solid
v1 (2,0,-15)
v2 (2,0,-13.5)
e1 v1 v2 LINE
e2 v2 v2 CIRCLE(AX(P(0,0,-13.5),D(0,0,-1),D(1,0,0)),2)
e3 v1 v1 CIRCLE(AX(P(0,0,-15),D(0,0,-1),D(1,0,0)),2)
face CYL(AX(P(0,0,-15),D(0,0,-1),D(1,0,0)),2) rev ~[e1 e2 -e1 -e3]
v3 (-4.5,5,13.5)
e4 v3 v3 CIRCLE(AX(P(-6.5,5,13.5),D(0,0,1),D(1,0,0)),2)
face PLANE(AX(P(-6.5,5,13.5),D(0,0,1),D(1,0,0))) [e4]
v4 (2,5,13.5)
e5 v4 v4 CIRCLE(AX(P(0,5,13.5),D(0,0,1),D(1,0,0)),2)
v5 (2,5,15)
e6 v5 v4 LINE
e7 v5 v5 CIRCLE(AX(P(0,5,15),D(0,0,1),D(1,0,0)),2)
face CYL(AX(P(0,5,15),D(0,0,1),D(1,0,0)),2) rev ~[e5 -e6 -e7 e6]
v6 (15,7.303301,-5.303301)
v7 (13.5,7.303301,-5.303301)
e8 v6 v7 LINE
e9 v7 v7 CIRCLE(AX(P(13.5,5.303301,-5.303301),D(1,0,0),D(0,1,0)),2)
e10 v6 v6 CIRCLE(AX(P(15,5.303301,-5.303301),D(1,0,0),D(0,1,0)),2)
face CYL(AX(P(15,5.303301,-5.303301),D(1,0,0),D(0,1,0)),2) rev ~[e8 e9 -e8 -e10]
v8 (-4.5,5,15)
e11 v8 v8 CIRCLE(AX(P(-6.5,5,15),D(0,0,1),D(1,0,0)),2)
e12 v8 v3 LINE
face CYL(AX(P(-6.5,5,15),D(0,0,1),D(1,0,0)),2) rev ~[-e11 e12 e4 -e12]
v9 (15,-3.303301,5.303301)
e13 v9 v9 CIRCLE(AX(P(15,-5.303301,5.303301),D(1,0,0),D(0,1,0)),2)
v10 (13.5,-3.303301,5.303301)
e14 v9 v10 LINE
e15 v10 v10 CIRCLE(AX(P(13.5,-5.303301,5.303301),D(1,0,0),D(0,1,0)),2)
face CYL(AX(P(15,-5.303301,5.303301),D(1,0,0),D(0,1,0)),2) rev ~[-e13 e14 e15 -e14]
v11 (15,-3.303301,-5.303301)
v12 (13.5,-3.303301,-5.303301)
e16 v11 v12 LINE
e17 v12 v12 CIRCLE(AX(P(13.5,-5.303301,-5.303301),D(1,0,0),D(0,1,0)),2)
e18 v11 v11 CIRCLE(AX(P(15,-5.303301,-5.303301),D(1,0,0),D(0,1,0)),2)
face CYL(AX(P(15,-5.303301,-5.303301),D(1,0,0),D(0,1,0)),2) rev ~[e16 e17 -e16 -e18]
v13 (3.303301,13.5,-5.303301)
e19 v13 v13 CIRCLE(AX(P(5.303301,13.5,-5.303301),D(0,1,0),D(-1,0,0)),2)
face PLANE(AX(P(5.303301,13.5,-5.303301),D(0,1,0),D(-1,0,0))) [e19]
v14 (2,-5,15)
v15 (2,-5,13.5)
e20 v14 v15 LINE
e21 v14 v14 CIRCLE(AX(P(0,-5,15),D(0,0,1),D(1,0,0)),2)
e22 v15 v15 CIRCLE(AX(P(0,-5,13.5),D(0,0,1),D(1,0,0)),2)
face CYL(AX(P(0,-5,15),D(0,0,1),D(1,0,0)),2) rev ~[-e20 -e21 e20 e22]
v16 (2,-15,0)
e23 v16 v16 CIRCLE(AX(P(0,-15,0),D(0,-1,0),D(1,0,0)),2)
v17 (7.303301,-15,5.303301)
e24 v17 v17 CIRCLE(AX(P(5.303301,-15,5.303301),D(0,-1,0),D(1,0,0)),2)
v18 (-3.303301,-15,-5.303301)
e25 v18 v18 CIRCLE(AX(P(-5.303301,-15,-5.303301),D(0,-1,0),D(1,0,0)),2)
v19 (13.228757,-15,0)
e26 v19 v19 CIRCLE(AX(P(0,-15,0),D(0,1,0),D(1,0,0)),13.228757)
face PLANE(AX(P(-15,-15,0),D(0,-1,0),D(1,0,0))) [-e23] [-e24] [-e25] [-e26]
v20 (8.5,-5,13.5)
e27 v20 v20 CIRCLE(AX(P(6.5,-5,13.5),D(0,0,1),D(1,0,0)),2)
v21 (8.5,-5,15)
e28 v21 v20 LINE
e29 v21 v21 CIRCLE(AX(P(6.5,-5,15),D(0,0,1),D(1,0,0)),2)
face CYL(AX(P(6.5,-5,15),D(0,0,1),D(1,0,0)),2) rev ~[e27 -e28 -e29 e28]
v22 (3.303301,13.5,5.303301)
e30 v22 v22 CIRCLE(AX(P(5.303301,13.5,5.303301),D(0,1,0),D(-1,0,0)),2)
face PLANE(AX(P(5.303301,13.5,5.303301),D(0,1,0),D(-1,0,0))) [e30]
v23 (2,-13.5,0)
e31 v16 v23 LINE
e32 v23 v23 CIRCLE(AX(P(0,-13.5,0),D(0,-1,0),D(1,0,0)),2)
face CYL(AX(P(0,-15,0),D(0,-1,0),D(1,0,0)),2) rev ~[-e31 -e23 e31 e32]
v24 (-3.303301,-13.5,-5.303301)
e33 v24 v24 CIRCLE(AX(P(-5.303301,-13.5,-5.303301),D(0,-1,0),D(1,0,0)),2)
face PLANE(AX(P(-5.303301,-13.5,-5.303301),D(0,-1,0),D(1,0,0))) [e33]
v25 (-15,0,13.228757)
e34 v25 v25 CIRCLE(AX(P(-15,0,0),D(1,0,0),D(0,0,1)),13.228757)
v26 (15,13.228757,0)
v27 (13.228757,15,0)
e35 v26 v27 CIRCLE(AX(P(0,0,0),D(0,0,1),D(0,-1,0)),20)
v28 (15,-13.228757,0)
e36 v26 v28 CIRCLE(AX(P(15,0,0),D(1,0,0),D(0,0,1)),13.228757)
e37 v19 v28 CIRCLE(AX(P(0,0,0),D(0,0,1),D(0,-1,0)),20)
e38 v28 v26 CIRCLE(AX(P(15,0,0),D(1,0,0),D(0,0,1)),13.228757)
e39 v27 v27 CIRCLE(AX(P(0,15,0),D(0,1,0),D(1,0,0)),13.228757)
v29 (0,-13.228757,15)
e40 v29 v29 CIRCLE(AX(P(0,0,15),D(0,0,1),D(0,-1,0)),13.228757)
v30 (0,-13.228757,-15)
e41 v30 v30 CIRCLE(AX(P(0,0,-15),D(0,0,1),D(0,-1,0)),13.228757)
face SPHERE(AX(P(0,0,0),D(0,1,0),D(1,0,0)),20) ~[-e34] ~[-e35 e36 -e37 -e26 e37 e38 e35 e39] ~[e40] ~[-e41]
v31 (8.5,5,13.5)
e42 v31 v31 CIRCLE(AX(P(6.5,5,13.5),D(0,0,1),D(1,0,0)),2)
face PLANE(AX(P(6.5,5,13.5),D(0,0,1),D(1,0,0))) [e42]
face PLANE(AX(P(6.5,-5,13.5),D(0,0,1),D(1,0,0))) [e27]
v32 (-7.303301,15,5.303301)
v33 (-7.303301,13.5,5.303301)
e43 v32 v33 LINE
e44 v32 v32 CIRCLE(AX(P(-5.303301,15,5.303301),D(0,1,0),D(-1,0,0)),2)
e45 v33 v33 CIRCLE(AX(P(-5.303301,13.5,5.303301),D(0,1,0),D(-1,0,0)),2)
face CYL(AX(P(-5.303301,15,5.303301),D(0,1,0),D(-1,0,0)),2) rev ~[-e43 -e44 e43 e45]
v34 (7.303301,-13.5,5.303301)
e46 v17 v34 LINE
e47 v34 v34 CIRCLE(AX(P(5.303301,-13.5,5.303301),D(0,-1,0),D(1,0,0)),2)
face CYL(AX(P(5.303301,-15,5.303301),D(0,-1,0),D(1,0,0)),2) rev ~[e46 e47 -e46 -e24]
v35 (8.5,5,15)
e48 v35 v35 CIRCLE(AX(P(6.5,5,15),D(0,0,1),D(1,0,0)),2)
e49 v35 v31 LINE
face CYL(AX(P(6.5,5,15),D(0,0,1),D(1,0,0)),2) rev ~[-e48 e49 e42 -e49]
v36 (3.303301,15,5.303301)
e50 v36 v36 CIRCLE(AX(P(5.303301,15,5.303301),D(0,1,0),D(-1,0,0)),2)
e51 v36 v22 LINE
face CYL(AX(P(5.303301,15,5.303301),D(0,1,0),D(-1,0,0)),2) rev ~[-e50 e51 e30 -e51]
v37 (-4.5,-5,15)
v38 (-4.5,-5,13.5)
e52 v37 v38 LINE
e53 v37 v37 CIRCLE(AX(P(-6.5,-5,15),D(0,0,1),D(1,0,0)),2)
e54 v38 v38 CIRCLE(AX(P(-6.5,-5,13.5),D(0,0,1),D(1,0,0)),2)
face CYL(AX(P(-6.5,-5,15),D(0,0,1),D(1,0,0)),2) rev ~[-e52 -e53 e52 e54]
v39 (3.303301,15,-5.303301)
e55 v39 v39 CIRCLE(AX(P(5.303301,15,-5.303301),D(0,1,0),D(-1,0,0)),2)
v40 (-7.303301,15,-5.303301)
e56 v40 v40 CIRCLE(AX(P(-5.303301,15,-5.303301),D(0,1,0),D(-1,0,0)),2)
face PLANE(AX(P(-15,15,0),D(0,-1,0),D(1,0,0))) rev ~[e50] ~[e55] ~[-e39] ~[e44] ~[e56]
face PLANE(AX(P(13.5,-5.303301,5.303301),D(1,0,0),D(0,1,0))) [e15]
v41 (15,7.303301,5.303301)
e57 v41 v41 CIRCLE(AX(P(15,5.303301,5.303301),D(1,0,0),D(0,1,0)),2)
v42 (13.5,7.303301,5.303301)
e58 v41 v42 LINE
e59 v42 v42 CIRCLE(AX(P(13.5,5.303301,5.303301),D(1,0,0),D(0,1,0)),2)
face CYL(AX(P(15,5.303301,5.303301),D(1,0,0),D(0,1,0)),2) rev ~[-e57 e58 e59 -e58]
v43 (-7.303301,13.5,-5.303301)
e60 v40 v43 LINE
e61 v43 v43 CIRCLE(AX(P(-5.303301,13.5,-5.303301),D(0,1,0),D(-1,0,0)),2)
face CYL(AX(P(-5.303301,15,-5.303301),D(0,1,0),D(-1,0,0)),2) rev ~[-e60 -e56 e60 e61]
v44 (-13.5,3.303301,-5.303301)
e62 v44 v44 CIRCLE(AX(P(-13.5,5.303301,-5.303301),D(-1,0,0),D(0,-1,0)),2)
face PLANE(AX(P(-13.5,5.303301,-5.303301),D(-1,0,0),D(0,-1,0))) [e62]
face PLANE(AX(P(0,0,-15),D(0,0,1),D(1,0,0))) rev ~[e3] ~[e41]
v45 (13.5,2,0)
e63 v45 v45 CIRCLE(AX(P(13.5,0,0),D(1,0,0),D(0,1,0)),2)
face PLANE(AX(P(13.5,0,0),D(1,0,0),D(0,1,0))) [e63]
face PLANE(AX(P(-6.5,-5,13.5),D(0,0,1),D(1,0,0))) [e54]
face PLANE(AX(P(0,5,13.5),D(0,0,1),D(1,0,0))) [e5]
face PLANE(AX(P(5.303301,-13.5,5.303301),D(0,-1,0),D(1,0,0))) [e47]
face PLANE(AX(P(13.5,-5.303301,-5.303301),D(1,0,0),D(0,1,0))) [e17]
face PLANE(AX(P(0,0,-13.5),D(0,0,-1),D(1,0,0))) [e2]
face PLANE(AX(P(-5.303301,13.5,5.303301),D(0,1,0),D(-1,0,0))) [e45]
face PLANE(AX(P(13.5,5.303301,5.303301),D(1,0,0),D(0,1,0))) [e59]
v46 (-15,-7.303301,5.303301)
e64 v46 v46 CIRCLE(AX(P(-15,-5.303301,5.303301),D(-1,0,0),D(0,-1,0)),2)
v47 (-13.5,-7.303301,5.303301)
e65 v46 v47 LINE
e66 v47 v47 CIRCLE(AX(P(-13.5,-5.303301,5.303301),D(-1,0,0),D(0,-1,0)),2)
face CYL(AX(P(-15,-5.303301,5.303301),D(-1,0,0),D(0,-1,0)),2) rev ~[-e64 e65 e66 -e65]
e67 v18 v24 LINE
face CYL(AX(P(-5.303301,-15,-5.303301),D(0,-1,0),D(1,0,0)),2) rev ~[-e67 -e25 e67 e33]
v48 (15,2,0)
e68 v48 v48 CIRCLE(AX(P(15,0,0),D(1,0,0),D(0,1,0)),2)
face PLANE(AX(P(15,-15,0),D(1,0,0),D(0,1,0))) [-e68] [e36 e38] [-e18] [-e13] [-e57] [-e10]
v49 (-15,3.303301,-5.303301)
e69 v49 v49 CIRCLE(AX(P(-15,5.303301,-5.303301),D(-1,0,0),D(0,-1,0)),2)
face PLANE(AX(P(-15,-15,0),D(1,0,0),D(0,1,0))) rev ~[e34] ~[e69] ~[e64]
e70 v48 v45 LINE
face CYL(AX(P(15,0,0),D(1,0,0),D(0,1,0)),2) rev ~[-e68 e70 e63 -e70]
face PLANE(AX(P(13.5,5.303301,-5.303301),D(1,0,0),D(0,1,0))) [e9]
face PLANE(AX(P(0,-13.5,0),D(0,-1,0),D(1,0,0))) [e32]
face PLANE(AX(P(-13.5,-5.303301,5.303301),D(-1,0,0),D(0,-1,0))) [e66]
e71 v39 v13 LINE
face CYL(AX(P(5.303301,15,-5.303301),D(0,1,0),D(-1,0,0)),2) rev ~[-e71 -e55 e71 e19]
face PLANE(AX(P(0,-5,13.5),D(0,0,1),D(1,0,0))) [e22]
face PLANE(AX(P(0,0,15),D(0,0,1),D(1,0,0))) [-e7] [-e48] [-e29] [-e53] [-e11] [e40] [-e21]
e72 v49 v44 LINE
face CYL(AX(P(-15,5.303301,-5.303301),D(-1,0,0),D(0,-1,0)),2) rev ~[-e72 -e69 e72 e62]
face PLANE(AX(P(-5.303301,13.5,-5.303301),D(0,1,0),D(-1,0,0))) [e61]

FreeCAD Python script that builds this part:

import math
import FreeCAD as App
import Part
import Sketcher
Q = App.Units.Quantity


def add_polygon(sketch, points):
    """Adds a closed chain of lines whose ends are joined by coincident constraints."""
    first, n = sketch.GeometryCount, len(points)
    for a, b in zip(points, points[1:] + points[:1]):
        sketch.addGeometry(Part.LineSegment(App.Vector(*a, 0), App.Vector(*b, 0)), False)
    for i in range(n):
        sketch.addConstraint(Sketcher.Constraint("Coincident", first + i, 2, first + (i + 1) % n, 1))

doc = App.newDocument("Part")
body = doc.addObject("PartDesign::Body", "Body")

sketch1 = body.newObject("Sketcher::SketchObject", "Sketch")
sketch1.AttachmentSupport = (doc.getObject("XY_Plane"), [""])
sketch1.MapMode = "FlatFace"
add_polygon(sketch1, [(-15, 15), (-15, -15), (15, -15), (15, 15)])
sketch1.addConstraint([
    Sketcher.Constraint("Vertical", 0),
    Sketcher.Constraint("Horizontal", 1),
    Sketcher.Constraint("Vertical", 2),
    Sketcher.Constraint("Horizontal", 3),
    Sketcher.Constraint("Symmetric", 0, 2, 2, 2, -1, 1),
    Sketcher.Constraint("Equal", 3, 0),
    Sketcher.Constraint("DistanceX", 1, 1, 1, 2, Q("30 mm")),
])
pad1 = body.newObject("PartDesign::Pad", "Pad")
pad1.Profile = sketch1
pad1.Length = 30
pad1.Midplane = True
body2 = doc.addObject("PartDesign::Body", "Body001")

sketch2 = body2.newObject("Sketcher::SketchObject", "Sketch001")
sketch2.AttachmentSupport = (doc.getObject("XY_Plane001"), [""])
sketch2.MapMode = "FlatFace"
sketch2.addGeometry([
    Part.ArcOfCircle(Part.Circle(App.Vector(0, 0, 0), App.Vector(0, 0, 1), 20), math.radians(-90), math.radians(90)),
    Part.LineSegment(App.Vector(0, 20, 0), App.Vector(0, -20, 0)),
], False)
sketch2.addConstraint([
    Sketcher.Constraint("Coincident", 0, 1, 1, 2),
    Sketcher.Constraint("Coincident", 1, 1, 0, 2),
    Sketcher.Constraint("Vertical", 1),
    Sketcher.Constraint("Coincident", 0, 3, -1, 1),
    Sketcher.Constraint("PointOnObject", 0, 1, -2),
    Sketcher.Constraint("Radius", 0, Q("20 mm")),
])
revolution = body2.newObject("PartDesign::Revolution", "Revolution")
revolution.Profile = sketch2
revolution.ReferenceAxis = (sketch2, ["V_Axis"])
revolution.Angle = 360
doc.recompute()

boolean = body.newObject("PartDesign::Boolean", "Boolean")
boolean.Type = "Common"
boolean.addObjects([body2])

sketch3 = body.newObject("Sketcher::SketchObject", "Sketch002")
sketch3.AttachmentSupport = (doc.getObject("XY_Plane"), [""])
sketch3.MapMode = "FlatFace"
sketch3.AttachmentOffset = App.Placement(App.Vector(0, 0, -15), App.Rotation())
sketch3.addGeometry(Part.Circle(App.Vector(0, 0, 0), App.Vector(0, 0, 1), 2), False)
sketch3.addConstraint([
    Sketcher.Constraint("Coincident", 0, 3, -1, 1),
    Sketcher.Constraint("Diameter", 0, Q("4 mm")),
])
pocket1 = body.newObject("PartDesign::Pocket", "Pocket")
pocket1.Profile = sketch3
pocket1.Length = 1.5
pocket1.Reversed = True

sketch4 = body.newObject("Sketcher::SketchObject", "Sketch003")
sketch4.AttachmentSupport = (doc.getObject("XY_Plane"), [""])
sketch4.MapMode = "FlatFace"
sketch4.AttachmentOffset = App.Placement(App.Vector(0, 0, 15), App.Rotation())
sketch4.addGeometry([
    Part.Circle(App.Vector(0, 5, 0), App.Vector(0, 0, 1), 2),
    Part.Circle(App.Vector(6.5, 5, 0), App.Vector(0, 0, 1), 2),
    Part.Circle(App.Vector(0, -5, 0), App.Vector(0, 0, 1), 2),
    Part.Circle(App.Vector(6.5, -5, 0), App.Vector(0, 0, 1), 2),
    Part.Circle(App.Vector(-6.5, -5, 0), App.Vector(0, 0, 1), 2),
    Part.Circle(App.Vector(-6.5, 5, 0), App.Vector(0, 0, 1), 2),
], False)
sketch4.addConstraint([
    Sketcher.Constraint("Equal", 0, 1),
    Sketcher.Constraint("Equal", 1, 2),
    Sketcher.Constraint("Equal", 2, 3),
    Sketcher.Constraint("Equal", 3, 4),
    Sketcher.Constraint("Equal", 4, 5),
    Sketcher.Constraint("Symmetric", 0, 3, 2, 3, -1, 1),
    Sketcher.Constraint("Symmetric", 1, 3, 4, 3, -1, 1),
    Sketcher.Constraint("Symmetric", 3, 3, 5, 3, -1, 1),
    Sketcher.Constraint("Symmetric", 3, 3, 4, 3, -2),
    Sketcher.Constraint("PointOnObject", 0, 3, -2),
    Sketcher.Constraint("Horizontal", 0, 3, 1, 3),
    Sketcher.Constraint("Diameter", 0, Q("4 mm")),
    Sketcher.Constraint("DistanceY", -1, 1, 0, 3, Q("5 mm")),
    Sketcher.Constraint("DistanceX", 4, 3, 3, 3, Q("13 mm")),
])
pocket2 = body.newObject("PartDesign::Pocket", "Pocket001")
pocket2.Profile = sketch4
pocket2.Length = 1.5

sketch5 = body.newObject("Sketcher::SketchObject", "Sketch004")
sketch5.AttachmentSupport = (doc.getObject("YZ_Plane"), [""])
sketch5.MapMode = "FlatFace"
sketch5.AttachmentOffset = App.Placement(App.Vector(0, 0, -15), App.Rotation())
sketch5.addGeometry([
    Part.Circle(App.Vector(-5.3, 5.3, 0), App.Vector(0, 0, 1), 2),
    Part.Circle(App.Vector(5.3, -5.3, 0), App.Vector(0, 0, 1), 2),
], False)
sketch5.addConstraint([
    Sketcher.Constraint("Equal", 0, 1),
    Sketcher.Constraint("Symmetric", 0, 3, 1, 3, -1, 1),
    Sketcher.Constraint("Diameter", 0, Q("4 mm")),
    Sketcher.Constraint("DistanceX", 0, 3, -1, 1, Q("5.303301 mm")),
    Sketcher.Constraint("DistanceY", -1, 1, 0, 3, Q("5.303301 mm")),
])
pocket3 = body.newObject("PartDesign::Pocket", "Pocket002")
pocket3.Profile = sketch5
pocket3.Length = 1.5
pocket3.Reversed = True

sketch6 = body.newObject("Sketcher::SketchObject", "Sketch005")
sketch6.AttachmentSupport = (doc.getObject("YZ_Plane"), [""])
sketch6.MapMode = "FlatFace"
sketch6.AttachmentOffset = App.Placement(App.Vector(0, 0, 15), App.Rotation())
sketch6.addGeometry([
    Part.Circle(App.Vector(5.3, 5.3, 0), App.Vector(0, 0, 1), 2),
    Part.Circle(App.Vector(0, 0, 0), App.Vector(0, 0, 1), 2),
    Part.Circle(App.Vector(-5.3, 5.3, 0), App.Vector(0, 0, 1), 2),
    Part.Circle(App.Vector(5.3, -5.3, 0), App.Vector(0, 0, 1), 2),
    Part.Circle(App.Vector(-5.3, -5.3, 0), App.Vector(0, 0, 1), 2),
], False)
sketch6.addConstraint([
    Sketcher.Constraint("Coincident", 1, 3, -1, 1),
    Sketcher.Constraint("Equal", 0, 1),
    Sketcher.Constraint("Equal", 1, 2),
    Sketcher.Constraint("Equal", 2, 3),
    Sketcher.Constraint("Equal", 3, 4),
    Sketcher.Constraint("Symmetric", 2, 3, 3, 3, -1, 1),
    Sketcher.Constraint("Symmetric", 0, 3, 4, 3, -1, 1),
    Sketcher.Constraint("Symmetric", 0, 3, 2, 3, -2),
    Sketcher.Constraint("Diameter", 0, Q("4 mm")),
    Sketcher.Constraint("DistanceX", -1, 1, 0, 3, Q("5.303301 mm")),
    Sketcher.Constraint("DistanceY", -1, 1, 0, 3, Q("5.303301 mm")),
])
pocket4 = body.newObject("PartDesign::Pocket", "Pocket003")
pocket4.Profile = sketch6
pocket4.Length = 1.5

sketch7 = body.newObject("Sketcher::SketchObject", "Sketch006")
sketch7.AttachmentSupport = (doc.getObject("XZ_Plane"), [""])
sketch7.MapMode = "FlatFace"
sketch7.AttachmentOffset = App.Placement(App.Vector(0, 0, 15), App.Rotation())
sketch7.addGeometry([
    Part.Circle(App.Vector(5.3, 5.3, 0), App.Vector(0, 0, 1), 2),
    Part.Circle(App.Vector(0, 0, 0), App.Vector(0, 0, 1), 2),
    Part.Circle(App.Vector(-5.3, -5.3, 0), App.Vector(0, 0, 1), 2),
], False)
sketch7.addConstraint([
    Sketcher.Constraint("Coincident", 1, 3, -1, 1),
    Sketcher.Constraint("Equal", 0, 1),
    Sketcher.Constraint("Equal", 1, 2),
    Sketcher.Constraint("Symmetric", 0, 3, 2, 3, -1, 1),
    Sketcher.Constraint("Diameter", 0, Q("4 mm")),
    Sketcher.Constraint("DistanceX", -1, 1, 0, 3, Q("5.303301 mm")),
    Sketcher.Constraint("DistanceY", -1, 1, 0, 3, Q("5.303301 mm")),
])
pocket5 = body.newObject("PartDesign::Pocket", "Pocket004")
pocket5.Profile = sketch7
pocket5.Length = 1.5

sketch8 = body.newObject("Sketcher::SketchObject", "Sketch007")
sketch8.AttachmentSupport = (doc.getObject("XZ_Plane"), [""])
sketch8.MapMode = "FlatFace"
sketch8.AttachmentOffset = App.Placement(App.Vector(0, 0, -15), App.Rotation())
sketch8.addGeometry([
    Part.Circle(App.Vector(-5.3, 5.3, 0), App.Vector(0, 0, 1), 2),
    Part.Circle(App.Vector(5.3, 5.3, 0), App.Vector(0, 0, 1), 2),
    Part.Circle(App.Vector(-5.3, -5.3, 0), App.Vector(0, 0, 1), 2),
    Part.Circle(App.Vector(5.3, -5.3, 0), App.Vector(0, 0, 1), 2),
], False)
sketch8.addConstraint([
    Sketcher.Constraint("Equal", 0, 1),
    Sketcher.Constraint("Equal", 1, 2),
    Sketcher.Constraint("Equal", 2, 3),
    Sketcher.Constraint("Symmetric", 1, 3, 2, 3, -1, 1),
    Sketcher.Constraint("Symmetric", 0, 3, 3, 3, -1, 1),
    Sketcher.Constraint("Symmetric", 0, 3, 1, 3, -2),
    Sketcher.Constraint("Diameter", 0, Q("4 mm")),
    Sketcher.Constraint("DistanceX", 0, 3, -1, 1, Q("5.303301 mm")),
    Sketcher.Constraint("DistanceY", -1, 1, 0, 3, Q("5.303301 mm")),
])
pocket6 = body.newObject("PartDesign::Pocket", "Pocket005")
pocket6.Profile = sketch8
pocket6.Length = 1.5
pocket6.Reversed = True

doc.recompute()
